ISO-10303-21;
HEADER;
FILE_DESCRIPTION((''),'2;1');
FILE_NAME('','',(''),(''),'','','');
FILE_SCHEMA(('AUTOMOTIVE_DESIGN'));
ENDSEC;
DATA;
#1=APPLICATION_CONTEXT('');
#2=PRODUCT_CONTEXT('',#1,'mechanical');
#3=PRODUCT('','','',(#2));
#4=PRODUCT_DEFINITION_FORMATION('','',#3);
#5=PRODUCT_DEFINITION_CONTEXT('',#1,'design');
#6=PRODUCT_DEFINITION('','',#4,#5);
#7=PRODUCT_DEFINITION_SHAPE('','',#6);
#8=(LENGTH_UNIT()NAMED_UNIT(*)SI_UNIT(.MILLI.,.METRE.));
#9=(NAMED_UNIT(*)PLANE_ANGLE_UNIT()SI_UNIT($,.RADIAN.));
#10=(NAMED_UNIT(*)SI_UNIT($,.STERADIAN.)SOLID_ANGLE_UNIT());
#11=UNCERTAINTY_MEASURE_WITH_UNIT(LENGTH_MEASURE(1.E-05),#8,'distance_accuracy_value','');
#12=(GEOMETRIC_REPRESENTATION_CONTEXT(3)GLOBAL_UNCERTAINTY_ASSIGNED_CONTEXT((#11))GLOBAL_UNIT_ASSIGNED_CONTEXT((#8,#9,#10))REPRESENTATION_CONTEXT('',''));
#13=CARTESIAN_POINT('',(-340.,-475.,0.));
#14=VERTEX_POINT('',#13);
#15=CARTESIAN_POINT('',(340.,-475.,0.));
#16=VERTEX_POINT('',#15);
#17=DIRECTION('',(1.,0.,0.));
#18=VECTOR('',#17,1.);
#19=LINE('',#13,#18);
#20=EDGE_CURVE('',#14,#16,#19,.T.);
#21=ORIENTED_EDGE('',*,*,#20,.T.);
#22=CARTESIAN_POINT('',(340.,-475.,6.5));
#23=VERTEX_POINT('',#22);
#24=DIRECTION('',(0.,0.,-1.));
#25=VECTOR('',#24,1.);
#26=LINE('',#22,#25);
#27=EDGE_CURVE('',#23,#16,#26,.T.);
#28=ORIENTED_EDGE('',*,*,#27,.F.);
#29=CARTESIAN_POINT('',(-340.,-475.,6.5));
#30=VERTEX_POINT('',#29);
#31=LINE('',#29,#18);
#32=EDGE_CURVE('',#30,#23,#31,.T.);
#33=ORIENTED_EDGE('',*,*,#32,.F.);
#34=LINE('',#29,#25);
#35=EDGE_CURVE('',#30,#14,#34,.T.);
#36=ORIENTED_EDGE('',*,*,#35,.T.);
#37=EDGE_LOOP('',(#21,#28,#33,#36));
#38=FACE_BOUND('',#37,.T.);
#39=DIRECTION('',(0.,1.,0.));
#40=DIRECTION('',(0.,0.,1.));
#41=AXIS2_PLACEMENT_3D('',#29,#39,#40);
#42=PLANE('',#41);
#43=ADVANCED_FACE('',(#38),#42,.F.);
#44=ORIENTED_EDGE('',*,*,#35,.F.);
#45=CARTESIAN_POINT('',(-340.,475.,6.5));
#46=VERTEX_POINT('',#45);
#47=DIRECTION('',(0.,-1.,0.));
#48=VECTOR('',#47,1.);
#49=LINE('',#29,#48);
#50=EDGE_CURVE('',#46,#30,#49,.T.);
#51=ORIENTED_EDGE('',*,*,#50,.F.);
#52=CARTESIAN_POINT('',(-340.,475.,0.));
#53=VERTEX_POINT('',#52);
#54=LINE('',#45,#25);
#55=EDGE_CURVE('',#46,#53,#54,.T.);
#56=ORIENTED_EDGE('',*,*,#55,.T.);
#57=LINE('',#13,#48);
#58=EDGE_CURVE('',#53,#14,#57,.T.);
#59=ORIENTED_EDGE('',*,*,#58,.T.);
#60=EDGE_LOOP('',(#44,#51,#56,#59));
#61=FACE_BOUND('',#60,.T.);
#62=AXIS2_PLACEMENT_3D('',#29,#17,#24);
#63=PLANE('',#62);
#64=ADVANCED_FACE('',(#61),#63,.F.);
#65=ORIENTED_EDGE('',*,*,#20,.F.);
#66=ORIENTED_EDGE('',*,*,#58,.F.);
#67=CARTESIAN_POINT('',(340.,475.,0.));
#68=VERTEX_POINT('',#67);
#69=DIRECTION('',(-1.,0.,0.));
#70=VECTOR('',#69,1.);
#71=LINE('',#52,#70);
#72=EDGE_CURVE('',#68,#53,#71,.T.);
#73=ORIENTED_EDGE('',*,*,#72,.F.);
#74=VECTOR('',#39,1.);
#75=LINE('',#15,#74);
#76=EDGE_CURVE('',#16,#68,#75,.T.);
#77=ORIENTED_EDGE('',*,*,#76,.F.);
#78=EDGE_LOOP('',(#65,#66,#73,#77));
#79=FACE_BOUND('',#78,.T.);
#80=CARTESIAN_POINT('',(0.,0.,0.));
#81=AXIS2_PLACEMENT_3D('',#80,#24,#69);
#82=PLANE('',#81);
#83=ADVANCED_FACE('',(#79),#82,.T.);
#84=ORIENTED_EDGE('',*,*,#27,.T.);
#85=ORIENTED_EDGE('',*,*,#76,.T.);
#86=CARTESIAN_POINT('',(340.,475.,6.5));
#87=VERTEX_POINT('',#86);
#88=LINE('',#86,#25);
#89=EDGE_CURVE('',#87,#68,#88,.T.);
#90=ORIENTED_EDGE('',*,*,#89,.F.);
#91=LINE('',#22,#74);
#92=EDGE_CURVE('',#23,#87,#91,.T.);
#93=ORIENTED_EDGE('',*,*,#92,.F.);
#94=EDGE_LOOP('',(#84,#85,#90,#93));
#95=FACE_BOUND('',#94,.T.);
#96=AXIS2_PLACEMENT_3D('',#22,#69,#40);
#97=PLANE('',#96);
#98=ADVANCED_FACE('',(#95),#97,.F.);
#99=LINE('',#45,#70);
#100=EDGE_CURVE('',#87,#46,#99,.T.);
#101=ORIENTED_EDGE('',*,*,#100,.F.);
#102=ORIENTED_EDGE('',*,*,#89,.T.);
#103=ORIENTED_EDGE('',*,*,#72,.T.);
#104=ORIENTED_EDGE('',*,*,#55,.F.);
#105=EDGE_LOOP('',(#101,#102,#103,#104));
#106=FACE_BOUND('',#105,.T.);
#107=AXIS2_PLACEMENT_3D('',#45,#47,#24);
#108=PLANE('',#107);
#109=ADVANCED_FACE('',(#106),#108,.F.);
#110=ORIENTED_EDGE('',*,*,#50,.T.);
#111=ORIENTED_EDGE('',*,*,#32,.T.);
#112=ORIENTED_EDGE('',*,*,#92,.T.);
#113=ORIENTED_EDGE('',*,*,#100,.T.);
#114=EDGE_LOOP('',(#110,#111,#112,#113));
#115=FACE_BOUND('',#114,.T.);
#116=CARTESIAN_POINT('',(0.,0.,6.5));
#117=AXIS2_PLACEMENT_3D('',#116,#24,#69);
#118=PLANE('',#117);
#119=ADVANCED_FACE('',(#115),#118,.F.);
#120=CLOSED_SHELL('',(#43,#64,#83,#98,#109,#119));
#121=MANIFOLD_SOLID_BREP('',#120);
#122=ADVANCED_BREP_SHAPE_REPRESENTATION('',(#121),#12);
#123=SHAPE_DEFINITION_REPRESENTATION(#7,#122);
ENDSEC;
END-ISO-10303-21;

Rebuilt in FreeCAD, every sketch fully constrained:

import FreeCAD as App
import Part
import Sketcher
from FreeCAD import Vector

doc = App.newDocument("Part")
body = doc.addObject("PartDesign::Body", "Body")

# Sketch on XY plane
sketch1 = body.newObject("Sketcher::SketchObject", "Sketch")
sketch1.AttachmentSupport = (doc.getObject("XY_Plane"), [""])
sketch1.MapMode = "FlatFace"
sketch1.addGeometry(Part.LineSegment(Vector(-340, 475, 0), Vector(-340, -475, 0)), False)
sketch1.addGeometry(Part.LineSegment(Vector(-340, -475, 0), Vector(340, -475, 0)), False)
sketch1.addGeometry(Part.LineSegment(Vector(340, -475, 0), Vector(340, 475, 0)), False)
sketch1.addGeometry(Part.LineSegment(Vector(340, 475, 0), Vector(-340, 475, 0)), False)
sketch1.addConstraint(Sketcher.Constraint("Coincident", 0, 2, 1, 1))
sketch1.addConstraint(Sketcher.Constraint("Coincident", 1, 2, 2, 1))
sketch1.addConstraint(Sketcher.Constraint("Coincident", 2, 2, 3, 1))
sketch1.addConstraint(Sketcher.Constraint("Coincident", 3, 2, 0, 1))
sketch1.addConstraint(Sketcher.Constraint("Vertical", 0))
sketch1.addConstraint(Sketcher.Constraint("Horizontal", 1))
sketch1.addConstraint(Sketcher.Constraint("Vertical", 2))
sketch1.addConstraint(Sketcher.Constraint("Horizontal", 3))
sketch1.addConstraint(Sketcher.Constraint("Symmetric", 0, 2, 2, 2, -1, 1))
sketch1.addConstraint(Sketcher.Constraint("DistanceX", 1, 1, 1, 2, 680.0))
sketch1.addConstraint(Sketcher.Constraint("DistanceY", 0, 2, 0, 1, 950.0))
pad1 = body.newObject("PartDesign::Pad", "Pad")
pad1.Profile = sketch1
pad1.Length = 6.5

doc.recompute()
